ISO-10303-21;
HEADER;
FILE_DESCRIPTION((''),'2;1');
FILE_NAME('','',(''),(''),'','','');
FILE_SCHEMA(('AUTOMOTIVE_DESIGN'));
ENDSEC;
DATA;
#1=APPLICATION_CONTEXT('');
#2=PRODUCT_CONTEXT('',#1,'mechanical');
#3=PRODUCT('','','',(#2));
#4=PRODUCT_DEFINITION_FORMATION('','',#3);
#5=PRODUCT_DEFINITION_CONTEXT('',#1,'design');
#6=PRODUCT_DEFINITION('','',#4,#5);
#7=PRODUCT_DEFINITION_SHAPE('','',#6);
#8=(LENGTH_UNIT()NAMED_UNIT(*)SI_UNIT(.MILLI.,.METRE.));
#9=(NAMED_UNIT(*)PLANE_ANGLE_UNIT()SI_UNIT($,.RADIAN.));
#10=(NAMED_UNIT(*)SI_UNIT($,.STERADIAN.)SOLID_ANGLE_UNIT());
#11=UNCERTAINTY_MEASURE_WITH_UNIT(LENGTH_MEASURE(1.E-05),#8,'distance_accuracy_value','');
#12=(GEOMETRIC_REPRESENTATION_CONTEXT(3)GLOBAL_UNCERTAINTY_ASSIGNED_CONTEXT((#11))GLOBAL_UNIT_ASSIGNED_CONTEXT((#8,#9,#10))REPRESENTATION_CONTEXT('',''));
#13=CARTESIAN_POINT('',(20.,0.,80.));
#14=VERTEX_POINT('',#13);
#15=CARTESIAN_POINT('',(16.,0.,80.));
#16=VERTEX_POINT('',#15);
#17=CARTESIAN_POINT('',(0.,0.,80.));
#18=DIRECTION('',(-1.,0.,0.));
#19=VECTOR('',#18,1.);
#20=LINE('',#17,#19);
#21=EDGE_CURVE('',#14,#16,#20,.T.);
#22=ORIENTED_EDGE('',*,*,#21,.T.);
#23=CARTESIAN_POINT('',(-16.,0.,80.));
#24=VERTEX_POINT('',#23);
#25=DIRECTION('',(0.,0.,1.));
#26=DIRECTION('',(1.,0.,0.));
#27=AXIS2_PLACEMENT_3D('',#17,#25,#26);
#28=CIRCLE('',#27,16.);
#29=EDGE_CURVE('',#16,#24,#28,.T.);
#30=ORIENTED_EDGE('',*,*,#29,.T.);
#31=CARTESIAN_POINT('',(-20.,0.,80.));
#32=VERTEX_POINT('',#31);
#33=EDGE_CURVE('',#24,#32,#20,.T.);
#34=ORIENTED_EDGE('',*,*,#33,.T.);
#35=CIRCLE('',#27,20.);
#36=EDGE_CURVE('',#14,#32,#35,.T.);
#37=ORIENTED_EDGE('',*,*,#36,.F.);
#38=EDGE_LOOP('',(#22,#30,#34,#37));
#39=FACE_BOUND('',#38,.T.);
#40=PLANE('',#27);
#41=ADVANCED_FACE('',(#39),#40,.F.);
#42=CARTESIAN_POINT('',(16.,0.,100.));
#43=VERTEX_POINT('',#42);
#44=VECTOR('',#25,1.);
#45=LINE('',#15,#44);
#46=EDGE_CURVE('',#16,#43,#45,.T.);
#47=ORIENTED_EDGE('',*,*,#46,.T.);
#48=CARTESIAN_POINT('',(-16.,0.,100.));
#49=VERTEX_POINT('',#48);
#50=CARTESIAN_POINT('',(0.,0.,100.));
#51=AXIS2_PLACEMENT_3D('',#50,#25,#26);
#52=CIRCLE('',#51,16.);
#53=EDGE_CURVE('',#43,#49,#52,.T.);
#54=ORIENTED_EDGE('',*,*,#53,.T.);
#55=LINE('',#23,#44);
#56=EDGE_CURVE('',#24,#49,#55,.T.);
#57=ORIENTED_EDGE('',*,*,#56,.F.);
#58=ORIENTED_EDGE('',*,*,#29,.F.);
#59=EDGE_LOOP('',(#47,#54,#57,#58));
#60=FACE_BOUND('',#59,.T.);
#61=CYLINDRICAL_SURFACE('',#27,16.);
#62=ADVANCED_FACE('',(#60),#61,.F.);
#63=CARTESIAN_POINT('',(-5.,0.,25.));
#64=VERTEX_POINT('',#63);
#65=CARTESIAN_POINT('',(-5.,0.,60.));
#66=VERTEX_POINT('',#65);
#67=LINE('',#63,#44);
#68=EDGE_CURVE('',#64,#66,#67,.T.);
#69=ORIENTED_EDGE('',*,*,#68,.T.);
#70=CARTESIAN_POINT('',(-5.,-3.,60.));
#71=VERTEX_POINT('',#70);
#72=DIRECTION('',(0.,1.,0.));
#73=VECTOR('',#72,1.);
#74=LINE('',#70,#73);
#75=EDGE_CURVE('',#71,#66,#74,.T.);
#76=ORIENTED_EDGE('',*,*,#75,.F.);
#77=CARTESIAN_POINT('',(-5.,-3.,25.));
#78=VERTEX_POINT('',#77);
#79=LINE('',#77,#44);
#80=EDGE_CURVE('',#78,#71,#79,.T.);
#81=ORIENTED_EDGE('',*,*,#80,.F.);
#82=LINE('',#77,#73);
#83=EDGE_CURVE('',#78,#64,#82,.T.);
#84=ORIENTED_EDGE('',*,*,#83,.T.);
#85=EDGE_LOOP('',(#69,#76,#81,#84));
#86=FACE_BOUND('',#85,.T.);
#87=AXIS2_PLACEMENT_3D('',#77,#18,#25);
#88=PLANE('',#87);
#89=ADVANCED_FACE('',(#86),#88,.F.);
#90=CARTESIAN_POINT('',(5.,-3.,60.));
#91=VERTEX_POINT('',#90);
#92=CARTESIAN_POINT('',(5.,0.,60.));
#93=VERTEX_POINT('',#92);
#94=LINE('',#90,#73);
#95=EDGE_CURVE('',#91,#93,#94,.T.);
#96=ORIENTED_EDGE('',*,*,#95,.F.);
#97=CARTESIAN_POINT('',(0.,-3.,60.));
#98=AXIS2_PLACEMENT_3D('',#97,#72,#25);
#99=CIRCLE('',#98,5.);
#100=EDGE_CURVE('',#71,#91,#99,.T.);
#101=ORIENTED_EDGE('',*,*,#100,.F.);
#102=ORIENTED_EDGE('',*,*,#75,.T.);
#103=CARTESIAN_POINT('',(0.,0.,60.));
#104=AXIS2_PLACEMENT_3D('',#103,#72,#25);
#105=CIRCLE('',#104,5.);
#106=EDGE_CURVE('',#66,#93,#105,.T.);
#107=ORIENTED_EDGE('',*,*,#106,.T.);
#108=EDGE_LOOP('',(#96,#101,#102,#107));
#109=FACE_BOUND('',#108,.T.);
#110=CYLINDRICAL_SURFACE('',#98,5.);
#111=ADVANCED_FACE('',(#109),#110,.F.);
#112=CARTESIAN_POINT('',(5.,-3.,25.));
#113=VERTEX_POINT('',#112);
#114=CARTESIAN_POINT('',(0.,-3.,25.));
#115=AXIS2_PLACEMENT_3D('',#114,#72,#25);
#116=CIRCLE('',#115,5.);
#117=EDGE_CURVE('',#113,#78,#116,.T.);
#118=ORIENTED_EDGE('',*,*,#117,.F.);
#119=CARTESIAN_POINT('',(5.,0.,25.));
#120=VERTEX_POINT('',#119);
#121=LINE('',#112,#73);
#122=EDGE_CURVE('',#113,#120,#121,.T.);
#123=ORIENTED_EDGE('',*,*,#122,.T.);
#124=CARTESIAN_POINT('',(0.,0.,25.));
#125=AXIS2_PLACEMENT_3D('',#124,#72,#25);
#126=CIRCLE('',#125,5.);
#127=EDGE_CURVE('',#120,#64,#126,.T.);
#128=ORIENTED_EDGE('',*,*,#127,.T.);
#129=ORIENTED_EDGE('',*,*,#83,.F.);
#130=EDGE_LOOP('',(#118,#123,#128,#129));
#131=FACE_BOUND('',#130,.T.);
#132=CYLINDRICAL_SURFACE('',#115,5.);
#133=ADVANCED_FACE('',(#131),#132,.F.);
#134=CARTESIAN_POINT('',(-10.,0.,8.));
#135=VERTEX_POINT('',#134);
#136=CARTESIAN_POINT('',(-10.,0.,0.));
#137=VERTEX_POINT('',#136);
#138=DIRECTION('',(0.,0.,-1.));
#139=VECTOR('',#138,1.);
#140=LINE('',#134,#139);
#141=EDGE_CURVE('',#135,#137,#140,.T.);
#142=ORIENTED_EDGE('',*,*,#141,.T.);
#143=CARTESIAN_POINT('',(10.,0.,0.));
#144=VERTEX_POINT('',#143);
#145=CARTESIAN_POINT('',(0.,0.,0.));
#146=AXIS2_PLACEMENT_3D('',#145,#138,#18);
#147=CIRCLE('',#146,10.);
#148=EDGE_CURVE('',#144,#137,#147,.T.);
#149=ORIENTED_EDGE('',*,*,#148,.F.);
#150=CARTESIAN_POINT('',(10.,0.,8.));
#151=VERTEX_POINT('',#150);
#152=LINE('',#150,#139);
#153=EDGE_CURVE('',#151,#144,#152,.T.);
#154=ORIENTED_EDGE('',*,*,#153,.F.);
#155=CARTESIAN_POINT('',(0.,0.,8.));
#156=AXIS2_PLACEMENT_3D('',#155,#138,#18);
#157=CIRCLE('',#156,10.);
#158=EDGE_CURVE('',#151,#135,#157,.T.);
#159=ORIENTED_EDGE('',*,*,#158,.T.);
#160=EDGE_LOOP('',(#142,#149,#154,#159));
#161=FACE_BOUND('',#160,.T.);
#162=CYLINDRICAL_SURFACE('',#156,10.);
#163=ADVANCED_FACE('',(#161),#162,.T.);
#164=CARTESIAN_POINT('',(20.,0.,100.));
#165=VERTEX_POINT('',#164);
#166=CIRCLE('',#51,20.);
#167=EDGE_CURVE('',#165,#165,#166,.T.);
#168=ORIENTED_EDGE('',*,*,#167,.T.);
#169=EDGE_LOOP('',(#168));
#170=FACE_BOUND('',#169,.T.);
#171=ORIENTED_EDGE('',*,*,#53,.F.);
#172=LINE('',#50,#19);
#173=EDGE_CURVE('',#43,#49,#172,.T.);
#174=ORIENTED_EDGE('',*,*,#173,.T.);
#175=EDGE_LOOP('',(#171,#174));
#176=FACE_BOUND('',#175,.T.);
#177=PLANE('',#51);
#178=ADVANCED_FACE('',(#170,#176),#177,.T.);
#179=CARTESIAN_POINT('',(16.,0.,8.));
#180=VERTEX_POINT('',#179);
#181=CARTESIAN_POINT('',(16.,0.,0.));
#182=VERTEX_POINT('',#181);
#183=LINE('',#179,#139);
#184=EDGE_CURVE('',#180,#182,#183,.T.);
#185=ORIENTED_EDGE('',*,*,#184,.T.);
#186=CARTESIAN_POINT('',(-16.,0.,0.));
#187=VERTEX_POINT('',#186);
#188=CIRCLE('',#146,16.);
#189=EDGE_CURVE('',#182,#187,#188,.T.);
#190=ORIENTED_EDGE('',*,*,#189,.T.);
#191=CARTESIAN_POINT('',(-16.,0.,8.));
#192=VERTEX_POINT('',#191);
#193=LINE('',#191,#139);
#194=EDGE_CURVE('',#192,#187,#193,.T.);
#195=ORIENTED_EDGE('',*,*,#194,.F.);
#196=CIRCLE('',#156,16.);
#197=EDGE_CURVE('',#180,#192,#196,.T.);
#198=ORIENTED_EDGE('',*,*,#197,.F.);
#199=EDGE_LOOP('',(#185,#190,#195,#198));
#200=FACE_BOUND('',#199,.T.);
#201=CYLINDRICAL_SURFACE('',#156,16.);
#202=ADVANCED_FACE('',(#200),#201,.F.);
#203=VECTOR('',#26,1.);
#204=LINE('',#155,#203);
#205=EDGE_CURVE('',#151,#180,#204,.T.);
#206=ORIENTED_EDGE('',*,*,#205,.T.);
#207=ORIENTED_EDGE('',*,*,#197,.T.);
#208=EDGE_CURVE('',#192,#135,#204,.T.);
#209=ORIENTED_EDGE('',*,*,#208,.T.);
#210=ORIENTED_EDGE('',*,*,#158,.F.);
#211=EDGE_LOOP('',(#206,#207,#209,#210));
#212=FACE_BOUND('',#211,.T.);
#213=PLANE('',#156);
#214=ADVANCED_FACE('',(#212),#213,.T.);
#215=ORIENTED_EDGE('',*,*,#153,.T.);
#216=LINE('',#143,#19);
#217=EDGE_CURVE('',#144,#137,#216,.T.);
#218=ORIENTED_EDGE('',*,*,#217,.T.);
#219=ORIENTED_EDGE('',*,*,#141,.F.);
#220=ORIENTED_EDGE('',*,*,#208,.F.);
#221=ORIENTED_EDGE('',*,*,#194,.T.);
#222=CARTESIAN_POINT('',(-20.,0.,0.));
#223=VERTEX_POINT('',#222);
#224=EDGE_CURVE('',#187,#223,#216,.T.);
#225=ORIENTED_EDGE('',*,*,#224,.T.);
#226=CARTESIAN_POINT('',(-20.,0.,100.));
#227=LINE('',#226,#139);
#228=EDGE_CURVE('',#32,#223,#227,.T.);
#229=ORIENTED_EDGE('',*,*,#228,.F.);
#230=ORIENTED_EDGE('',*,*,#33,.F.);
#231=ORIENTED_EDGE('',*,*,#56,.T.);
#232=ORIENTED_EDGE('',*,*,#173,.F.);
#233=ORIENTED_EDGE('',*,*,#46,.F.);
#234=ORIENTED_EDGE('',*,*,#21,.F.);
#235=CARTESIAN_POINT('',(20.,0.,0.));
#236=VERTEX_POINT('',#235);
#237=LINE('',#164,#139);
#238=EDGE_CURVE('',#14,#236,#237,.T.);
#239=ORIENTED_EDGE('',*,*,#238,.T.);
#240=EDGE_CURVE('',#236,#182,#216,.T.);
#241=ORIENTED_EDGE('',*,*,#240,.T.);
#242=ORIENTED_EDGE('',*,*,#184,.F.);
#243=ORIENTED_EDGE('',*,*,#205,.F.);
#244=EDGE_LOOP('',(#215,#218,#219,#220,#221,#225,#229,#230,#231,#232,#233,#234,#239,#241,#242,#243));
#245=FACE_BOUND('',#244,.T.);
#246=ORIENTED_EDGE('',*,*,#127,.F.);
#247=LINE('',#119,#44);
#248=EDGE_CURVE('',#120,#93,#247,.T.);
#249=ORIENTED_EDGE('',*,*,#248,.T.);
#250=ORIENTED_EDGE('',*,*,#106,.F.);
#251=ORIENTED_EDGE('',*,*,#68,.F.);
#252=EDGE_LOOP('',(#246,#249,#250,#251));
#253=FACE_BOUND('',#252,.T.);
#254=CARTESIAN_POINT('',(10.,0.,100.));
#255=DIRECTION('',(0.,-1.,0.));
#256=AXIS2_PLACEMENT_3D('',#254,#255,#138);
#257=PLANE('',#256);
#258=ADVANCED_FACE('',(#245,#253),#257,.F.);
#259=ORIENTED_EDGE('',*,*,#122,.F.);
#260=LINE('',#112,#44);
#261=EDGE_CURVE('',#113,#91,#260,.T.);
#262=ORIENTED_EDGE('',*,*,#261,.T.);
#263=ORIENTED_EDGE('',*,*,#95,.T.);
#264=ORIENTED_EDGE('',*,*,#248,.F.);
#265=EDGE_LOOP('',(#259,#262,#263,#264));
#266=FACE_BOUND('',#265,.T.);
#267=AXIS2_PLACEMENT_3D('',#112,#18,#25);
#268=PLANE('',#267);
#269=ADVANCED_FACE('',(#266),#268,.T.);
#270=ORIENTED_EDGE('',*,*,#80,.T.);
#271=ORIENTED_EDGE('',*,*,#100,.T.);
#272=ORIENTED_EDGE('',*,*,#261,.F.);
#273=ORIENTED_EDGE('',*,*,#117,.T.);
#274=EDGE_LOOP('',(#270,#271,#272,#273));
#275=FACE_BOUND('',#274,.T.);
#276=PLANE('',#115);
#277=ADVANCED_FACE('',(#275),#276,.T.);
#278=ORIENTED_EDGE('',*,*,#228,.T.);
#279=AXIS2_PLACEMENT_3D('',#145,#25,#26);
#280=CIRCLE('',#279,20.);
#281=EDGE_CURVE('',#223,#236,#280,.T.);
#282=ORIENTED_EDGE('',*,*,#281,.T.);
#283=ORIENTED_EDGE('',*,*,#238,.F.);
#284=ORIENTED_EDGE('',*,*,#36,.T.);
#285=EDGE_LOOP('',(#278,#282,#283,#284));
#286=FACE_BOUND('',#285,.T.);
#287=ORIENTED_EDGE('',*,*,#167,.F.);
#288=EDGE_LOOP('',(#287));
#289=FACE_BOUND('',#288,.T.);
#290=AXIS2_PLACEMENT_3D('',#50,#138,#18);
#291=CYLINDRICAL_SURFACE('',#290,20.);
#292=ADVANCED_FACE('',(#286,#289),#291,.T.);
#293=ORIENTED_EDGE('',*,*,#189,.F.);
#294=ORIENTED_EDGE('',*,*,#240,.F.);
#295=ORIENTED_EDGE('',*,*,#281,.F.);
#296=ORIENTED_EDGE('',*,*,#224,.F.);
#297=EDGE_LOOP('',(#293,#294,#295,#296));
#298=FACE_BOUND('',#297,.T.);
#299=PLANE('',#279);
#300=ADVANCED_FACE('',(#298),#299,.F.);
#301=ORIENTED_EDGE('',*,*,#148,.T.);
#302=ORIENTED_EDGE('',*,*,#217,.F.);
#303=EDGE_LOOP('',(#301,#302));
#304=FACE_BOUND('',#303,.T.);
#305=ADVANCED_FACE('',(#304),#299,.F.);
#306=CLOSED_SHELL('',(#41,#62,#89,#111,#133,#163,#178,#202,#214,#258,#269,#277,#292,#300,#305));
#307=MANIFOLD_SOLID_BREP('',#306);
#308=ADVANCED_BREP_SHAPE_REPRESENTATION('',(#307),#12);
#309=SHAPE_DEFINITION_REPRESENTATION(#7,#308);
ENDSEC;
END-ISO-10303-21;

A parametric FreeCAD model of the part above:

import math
import FreeCAD as App
import Part
import Sketcher
from FreeCAD import Vector
Q = App.Units.Quantity

doc = App.newDocument("Part")
params = doc.addObject("Spreadsheet::Sheet", "Params")
for row, (alias, value) in enumerate([
    ("sketch1_radius", "20 mm"),
    ("pad1_length", "100 mm"),
    ("sketch2_radius", "16 mm"),
    ("sketch2_radius2", "10 mm"),
    ("pocket1_length", "8 mm"),
    ("sketch3_radius", "5 mm"),
    ("sketch3_height", "35 mm"),
    ("pocket2_length", "3 mm"),
    ("sketch4_radius", "16 mm"),
    ("sketch4_radius2", "20 mm"),
    ("pad2_length", "20 mm"),
], start=1):
    params.set(f"A{row}", alias)
    params.set(f"B{row}", "=" + value)
    params.setAlias(f"B{row}", alias)

body = doc.addObject("PartDesign::Body", "Body")

sketch1 = body.newObject("Sketcher::SketchObject", "Sketch")
sketch1.AttachmentSupport = (doc.getObject("XY_Plane"), [""])
sketch1.MapMode = "FlatFace"
sketch1.addGeometry([
    Part.LineSegment(Vector(20, 0, 0), Vector(-20, 0, 0)),
    Part.ArcOfCircle(Part.Circle(Vector(0, 0, 0), Vector(0, 0, 1), 20), math.radians(180), math.radians(360)),
], False)
sketch1.addConstraint([
    Sketcher.Constraint("Coincident", 0, 1, 1, 2),
    Sketcher.Constraint("Coincident", 1, 1, 0, 2),
    Sketcher.Constraint("Horizontal", 0),
    Sketcher.Constraint("Coincident", 1, 3, -1, 1),
    Sketcher.Constraint("PointOnObject", 0, 1, -1),
    Sketcher.Constraint("Radius", 1, Q("20 mm")),
])
sketch1.setExpression("Constraints[5]", "Params.sketch1_radius")
pad1 = body.newObject("PartDesign::Pad", "Pad")
pad1.Profile = sketch1
pad1.setExpression("Length", "Params.pad1_length")

sketch2 = body.newObject("Sketcher::SketchObject", "Sketch001")
sketch2.AttachmentSupport = (doc.getObject("XY_Plane"), [""])
sketch2.MapMode = "FlatFace"
sketch2.addGeometry([
    Part.LineSegment(Vector(10, 0, 0), Vector(16, 0, 0)),
    Part.ArcOfCircle(Part.Circle(Vector(0, 0, 0), Vector(0, 0, 1), 16), math.radians(180), math.radians(360)),
    Part.LineSegment(Vector(-16, 0, 0), Vector(-10, 0, 0)),
    Part.ArcOfCircle(Part.Circle(Vector(0, 0, 0), Vector(0, 0, 1), 10), math.radians(180), math.radians(360)),
], False)
sketch2.addConstraint([
    Sketcher.Constraint("Coincident", 0, 2, 1, 2),
    Sketcher.Constraint("Coincident", 1, 1, 2, 1),
    Sketcher.Constraint("Coincident", 2, 2, 3, 1),
    Sketcher.Constraint("Coincident", 3, 2, 0, 1),
    Sketcher.Constraint("Horizontal", 0),
    Sketcher.Constraint("Horizontal", 2),
    Sketcher.Constraint("Coincident", 1, 3, -1, 1),
    Sketcher.Constraint("Coincident", 3, 3, -1, 1),
    Sketcher.Constraint("PointOnObject", 0, 2, -1),
    Sketcher.Constraint("PointOnObject", 1, 1, -1),
    Sketcher.Constraint("Radius", 1, Q("16 mm")),
    Sketcher.Constraint("Radius", 3, Q("10 mm")),
])
sketch2.setExpression("Constraints[10]", "Params.sketch2_radius")
sketch2.setExpression("Constraints[11]", "Params.sketch2_radius2")
pocket1 = body.newObject("PartDesign::Pocket", "Pocket")
pocket1.Profile = sketch2
pocket1.setExpression("Length", "Params.pocket1_length")
pocket1.Reversed = True

sketch3 = body.newObject("Sketcher::SketchObject", "Sketch002")
sketch3.AttachmentSupport = (doc.getObject("XZ_Plane"), [""])
sketch3.MapMode = "FlatFace"
sketch3.addGeometry([
    Part.LineSegment(Vector(5, 60, 0), Vector(5, 25, 0)),
    Part.ArcOfCircle(Part.Circle(Vector(0, 25, 0), Vector(0, 0, 1), 5), math.radians(180), math.radians(360)),
    Part.LineSegment(Vector(-5, 25, 0), Vector(-5, 60, 0)),
    Part.ArcOfCircle(Part.Circle(Vector(0, 60, 0), Vector(0, 0, 1), 5), math.radians(0), math.radians(180)),
], False)
sketch3.addConstraint([
    Sketcher.Constraint("Tangent", 0, 2, 1, 2),
    Sketcher.Constraint("Tangent", 1, 1, 2, 1),
    Sketcher.Constraint("Tangent", 2, 2, 3, 2),
    Sketcher.Constraint("Tangent", 3, 1, 0, 1),
    Sketcher.Constraint("Vertical", 0),
    Sketcher.Constraint("Vertical", 2),
    Sketcher.Constraint("PointOnObject", 1, 3, -2),
    Sketcher.Constraint("Radius", 1, Q("5 mm")),
    Sketcher.Constraint("DistanceY", 0, 2, 0, 1, Q("35 mm")),
    Sketcher.Constraint("DistanceY", -1, 1, 1, 3, Q("25 mm")),
])
sketch3.setExpression("Constraints[7]", "Params.sketch3_radius")
sketch3.setExpression("Constraints[8]", "Params.sketch3_height")
pocket2 = body.newObject("PartDesign::Pocket", "Pocket001")
pocket2.Profile = sketch3
pocket2.setExpression("Length", "Params.pocket2_length")
pocket2.Reversed = True

sketch4 = body.newObject("Sketcher::SketchObject", "Sketch003")
sketch4.AttachmentSupport = (doc.getObject("XY_Plane"), [""])
sketch4.MapMode = "FlatFace"
sketch4.AttachmentOffset = App.Placement(Vector(0, 0, 100), App.Rotation())
sketch4.addGeometry([
    Part.LineSegment(Vector(-20, 0, 0), Vector(-16, 0, 0)),
    Part.ArcOfCircle(Part.Circle(Vector(0, 0, 0), Vector(0, 0, 1), 16), math.radians(0), math.radians(180)),
    Part.LineSegment(Vector(16, 0, 0), Vector(20, 0, 0)),
    Part.ArcOfCircle(Part.Circle(Vector(0, 0, 0), Vector(0, 0, 1), 20), math.radians(0), math.radians(180)),
], False)
sketch4.addConstraint([
    Sketcher.Constraint("Coincident", 0, 2, 1, 2),
    Sketcher.Constraint("Coincident", 1, 1, 2, 1),
    Sketcher.Constraint("Coincident", 2, 2, 3, 1),
    Sketcher.Constraint("Coincident", 3, 2, 0, 1),
    Sketcher.Constraint("Horizontal", 0),
    Sketcher.Constraint("Horizontal", 2),
    Sketcher.Constraint("Coincident", 1, 3, -1, 1),
    Sketcher.Constraint("Coincident", 3, 3, -1, 1),
    Sketcher.Constraint("PointOnObject", 0, 2, -1),
    Sketcher.Constraint("PointOnObject", 1, 1, -1),
    Sketcher.Constraint("Radius", 1, Q("16 mm")),
    Sketcher.Constraint("Radius", 3, Q("20 mm")),
])
sketch4.setExpression("Constraints[10]", "Params.sketch4_radius")
sketch4.setExpression("Constraints[11]", "Params.sketch4_radius2")
pad2 = body.newObject("PartDesign::Pad", "Pad001")
pad2.Profile = sketch4
pad2.setExpression("Length", "Params.pad2_length")
pad2.Reversed = True

doc.recompute()
